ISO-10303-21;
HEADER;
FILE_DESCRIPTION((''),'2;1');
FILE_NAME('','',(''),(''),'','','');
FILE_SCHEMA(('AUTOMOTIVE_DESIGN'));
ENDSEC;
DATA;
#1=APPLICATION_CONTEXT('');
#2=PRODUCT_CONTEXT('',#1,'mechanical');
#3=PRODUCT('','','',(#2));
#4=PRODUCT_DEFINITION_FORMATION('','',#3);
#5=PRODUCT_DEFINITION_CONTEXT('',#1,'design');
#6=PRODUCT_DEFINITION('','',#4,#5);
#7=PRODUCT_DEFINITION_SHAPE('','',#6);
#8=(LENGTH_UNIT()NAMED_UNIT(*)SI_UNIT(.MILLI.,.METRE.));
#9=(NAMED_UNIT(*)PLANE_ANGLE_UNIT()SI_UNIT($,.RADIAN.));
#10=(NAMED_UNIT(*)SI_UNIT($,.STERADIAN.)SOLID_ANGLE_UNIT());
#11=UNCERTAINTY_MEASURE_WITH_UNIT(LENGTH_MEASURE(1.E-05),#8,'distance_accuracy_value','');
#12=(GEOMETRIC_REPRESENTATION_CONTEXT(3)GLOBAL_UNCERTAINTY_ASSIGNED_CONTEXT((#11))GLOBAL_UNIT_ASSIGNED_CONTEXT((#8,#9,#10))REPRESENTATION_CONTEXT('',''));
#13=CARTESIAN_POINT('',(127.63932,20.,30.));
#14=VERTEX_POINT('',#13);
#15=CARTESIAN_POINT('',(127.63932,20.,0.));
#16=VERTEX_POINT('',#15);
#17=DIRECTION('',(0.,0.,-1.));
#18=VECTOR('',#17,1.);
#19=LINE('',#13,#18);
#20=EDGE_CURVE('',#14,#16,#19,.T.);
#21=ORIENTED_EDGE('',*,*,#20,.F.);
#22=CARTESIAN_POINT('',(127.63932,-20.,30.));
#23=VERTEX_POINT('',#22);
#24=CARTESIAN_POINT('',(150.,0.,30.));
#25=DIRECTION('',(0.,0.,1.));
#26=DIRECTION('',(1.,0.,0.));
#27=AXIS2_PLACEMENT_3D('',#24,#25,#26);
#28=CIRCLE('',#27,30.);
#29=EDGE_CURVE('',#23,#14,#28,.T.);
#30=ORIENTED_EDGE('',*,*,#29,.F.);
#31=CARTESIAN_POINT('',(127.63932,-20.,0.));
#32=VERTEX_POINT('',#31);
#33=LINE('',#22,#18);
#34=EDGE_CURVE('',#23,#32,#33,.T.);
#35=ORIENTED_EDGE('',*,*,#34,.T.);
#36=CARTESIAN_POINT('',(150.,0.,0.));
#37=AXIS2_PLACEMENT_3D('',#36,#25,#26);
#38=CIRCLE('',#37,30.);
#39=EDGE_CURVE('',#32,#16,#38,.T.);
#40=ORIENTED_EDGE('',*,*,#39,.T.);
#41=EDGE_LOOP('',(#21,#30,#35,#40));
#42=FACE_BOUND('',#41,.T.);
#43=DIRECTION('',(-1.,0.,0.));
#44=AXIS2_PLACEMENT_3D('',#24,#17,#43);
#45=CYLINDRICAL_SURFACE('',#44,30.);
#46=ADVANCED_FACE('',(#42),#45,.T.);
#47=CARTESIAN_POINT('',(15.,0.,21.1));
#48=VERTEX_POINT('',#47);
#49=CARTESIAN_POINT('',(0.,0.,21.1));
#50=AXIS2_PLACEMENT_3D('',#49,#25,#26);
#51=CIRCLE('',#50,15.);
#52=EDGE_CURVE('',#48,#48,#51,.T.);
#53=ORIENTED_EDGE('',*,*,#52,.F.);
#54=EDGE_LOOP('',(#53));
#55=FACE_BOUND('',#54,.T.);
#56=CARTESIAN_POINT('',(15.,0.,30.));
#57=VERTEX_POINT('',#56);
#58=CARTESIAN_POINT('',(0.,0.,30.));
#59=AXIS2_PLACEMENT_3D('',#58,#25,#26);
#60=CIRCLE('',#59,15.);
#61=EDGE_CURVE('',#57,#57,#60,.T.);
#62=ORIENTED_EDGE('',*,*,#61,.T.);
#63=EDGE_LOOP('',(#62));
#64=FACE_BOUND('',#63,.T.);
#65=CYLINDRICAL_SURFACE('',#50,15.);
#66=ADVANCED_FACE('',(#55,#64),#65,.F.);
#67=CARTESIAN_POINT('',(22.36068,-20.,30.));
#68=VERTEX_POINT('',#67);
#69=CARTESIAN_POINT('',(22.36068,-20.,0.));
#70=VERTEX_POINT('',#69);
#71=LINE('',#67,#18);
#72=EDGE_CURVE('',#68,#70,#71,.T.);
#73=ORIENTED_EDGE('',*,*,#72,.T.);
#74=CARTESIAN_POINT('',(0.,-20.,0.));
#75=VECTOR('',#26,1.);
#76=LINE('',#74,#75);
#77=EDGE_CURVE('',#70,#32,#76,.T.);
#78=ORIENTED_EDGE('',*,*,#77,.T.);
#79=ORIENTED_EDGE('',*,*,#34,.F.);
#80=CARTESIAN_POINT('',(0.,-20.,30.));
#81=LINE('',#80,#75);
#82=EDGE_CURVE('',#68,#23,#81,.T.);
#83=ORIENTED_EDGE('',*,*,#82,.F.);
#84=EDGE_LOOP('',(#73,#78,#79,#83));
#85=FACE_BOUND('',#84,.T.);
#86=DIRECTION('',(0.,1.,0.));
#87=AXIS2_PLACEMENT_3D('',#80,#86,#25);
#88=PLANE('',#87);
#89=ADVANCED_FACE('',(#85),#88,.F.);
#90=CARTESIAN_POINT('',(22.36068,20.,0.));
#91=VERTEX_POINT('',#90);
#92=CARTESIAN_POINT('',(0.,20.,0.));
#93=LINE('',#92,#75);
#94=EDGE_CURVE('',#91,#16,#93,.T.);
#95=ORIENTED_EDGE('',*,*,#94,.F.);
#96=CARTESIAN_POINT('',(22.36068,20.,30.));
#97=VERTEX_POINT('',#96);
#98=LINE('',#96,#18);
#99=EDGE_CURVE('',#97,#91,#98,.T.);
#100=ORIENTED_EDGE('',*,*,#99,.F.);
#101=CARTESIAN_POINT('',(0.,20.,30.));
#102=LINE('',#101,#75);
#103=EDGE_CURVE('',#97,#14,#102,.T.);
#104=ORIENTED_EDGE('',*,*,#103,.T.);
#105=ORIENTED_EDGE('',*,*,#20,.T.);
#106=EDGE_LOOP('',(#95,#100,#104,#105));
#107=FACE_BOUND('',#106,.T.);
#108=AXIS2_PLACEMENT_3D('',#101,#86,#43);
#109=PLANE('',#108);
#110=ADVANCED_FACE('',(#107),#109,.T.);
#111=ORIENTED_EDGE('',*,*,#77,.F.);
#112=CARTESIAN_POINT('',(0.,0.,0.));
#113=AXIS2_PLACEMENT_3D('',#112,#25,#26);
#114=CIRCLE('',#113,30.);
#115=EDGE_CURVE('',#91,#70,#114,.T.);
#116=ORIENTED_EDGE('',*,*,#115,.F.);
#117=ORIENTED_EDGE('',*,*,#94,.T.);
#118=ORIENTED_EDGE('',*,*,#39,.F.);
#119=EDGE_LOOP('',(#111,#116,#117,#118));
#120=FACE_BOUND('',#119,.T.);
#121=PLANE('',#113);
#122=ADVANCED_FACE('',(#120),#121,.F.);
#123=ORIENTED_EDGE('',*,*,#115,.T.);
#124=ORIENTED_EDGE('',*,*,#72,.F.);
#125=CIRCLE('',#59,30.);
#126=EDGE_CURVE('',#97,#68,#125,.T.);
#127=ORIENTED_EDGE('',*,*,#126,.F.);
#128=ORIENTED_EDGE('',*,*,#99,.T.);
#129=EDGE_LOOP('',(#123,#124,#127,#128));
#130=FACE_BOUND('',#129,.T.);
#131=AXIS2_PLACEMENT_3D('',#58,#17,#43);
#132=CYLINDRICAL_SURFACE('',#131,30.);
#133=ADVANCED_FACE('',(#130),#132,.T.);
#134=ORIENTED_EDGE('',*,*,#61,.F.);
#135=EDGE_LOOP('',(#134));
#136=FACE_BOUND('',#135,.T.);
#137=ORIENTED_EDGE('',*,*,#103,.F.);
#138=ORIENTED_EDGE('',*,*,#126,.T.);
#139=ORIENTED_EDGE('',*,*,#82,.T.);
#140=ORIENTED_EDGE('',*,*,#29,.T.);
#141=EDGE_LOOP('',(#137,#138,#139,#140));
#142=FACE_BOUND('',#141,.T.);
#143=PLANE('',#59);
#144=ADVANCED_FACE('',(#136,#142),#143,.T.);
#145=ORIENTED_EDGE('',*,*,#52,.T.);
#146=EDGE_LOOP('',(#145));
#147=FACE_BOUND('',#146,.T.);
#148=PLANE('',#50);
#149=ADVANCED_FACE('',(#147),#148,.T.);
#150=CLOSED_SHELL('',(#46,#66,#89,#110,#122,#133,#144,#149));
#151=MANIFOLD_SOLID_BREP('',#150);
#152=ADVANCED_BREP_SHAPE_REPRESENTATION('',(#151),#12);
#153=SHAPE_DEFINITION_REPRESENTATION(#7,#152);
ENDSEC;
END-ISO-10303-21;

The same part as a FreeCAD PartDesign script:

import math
import FreeCAD as App
import Part
import Sketcher
from FreeCAD import Vector
Q = App.Units.Quantity

doc = App.newDocument("Part")
body = doc.addObject("PartDesign::Body", "Body")

# Sketch on XY plane
sketch1 = doc.addObject("Sketcher::SketchObject", "Sketch")
body.addObject(sketch1)
sketch1.AttachmentSupport = (doc.XY_Plane, [""])
sketch1.MapMode = "FlatFace"
sketch1.addGeometry([
    Part.LineSegment(Vector(22, -20, 0), Vector(128, -20, 0)),
    Part.ArcOfCircle(Part.Circle(Vector(150, 0, 0), Vector(0, 0, 1), 30), math.radians(-138), math.radians(138)),
    Part.LineSegment(Vector(128, 20, 0), Vector(22, 20, 0)),
    Part.ArcOfCircle(Part.Circle(Vector(0, 0, 0), Vector(0, 0, 1), 30), math.radians(42), math.radians(318)),
], False)
sketch1.addConstraint([
    Sketcher.Constraint("Coincident", 0, 2, 1, 1),
    Sketcher.Constraint("Coincident", 1, 2, 2, 1),
    Sketcher.Constraint("Coincident", 2, 2, 3, 1),
    Sketcher.Constraint("Coincident", 3, 2, 0, 1),
    Sketcher.Constraint("Horizontal", 0),
    Sketcher.Constraint("Horizontal", 2),
    Sketcher.Constraint("Coincident", 3, 3, -1, 1),
    Sketcher.Constraint("Equal", 1, 3),
    Sketcher.Constraint("Symmetric", 0, 2, 1, 2, -1),
    Sketcher.Constraint("Radius", 1, Q("30 mm")),
    Sketcher.Constraint("DistanceX", -1, 1, 1, 3, Q("150 mm")),
    Sketcher.Constraint("DistanceY", 0, 2, -1, 1, Q("20 mm")),
])
pad1 = doc.addObject("PartDesign::Pad", "Pad")
body.addObject(pad1)
pad1.Profile = sketch1
pad1.Length = 30

# Sketch on XY plane
sketch2 = doc.addObject("Sketcher::SketchObject", "Sketch001")
body.addObject(sketch2)
sketch2.AttachmentSupport = (doc.XY_Plane, [""])
sketch2.MapMode = "FlatFace"
sketch2.AttachmentOffset = App.Placement(Vector(0, 0, 30), App.Rotation())
sketch2.addGeometry(Part.Circle(Vector(0, 0, 0), Vector(0, 0, 1), 15), False)
sketch2.addConstraint([
    Sketcher.Constraint("Coincident", 0, 3, -1, 1),
    Sketcher.Constraint("Diameter", 0, Q("30 mm")),
])
pocket1 = doc.addObject("PartDesign::Pocket", "Pocket")
body.addObject(pocket1)
pocket1.Profile = sketch2
pocket1.Length = 8.9

doc.recompute()
